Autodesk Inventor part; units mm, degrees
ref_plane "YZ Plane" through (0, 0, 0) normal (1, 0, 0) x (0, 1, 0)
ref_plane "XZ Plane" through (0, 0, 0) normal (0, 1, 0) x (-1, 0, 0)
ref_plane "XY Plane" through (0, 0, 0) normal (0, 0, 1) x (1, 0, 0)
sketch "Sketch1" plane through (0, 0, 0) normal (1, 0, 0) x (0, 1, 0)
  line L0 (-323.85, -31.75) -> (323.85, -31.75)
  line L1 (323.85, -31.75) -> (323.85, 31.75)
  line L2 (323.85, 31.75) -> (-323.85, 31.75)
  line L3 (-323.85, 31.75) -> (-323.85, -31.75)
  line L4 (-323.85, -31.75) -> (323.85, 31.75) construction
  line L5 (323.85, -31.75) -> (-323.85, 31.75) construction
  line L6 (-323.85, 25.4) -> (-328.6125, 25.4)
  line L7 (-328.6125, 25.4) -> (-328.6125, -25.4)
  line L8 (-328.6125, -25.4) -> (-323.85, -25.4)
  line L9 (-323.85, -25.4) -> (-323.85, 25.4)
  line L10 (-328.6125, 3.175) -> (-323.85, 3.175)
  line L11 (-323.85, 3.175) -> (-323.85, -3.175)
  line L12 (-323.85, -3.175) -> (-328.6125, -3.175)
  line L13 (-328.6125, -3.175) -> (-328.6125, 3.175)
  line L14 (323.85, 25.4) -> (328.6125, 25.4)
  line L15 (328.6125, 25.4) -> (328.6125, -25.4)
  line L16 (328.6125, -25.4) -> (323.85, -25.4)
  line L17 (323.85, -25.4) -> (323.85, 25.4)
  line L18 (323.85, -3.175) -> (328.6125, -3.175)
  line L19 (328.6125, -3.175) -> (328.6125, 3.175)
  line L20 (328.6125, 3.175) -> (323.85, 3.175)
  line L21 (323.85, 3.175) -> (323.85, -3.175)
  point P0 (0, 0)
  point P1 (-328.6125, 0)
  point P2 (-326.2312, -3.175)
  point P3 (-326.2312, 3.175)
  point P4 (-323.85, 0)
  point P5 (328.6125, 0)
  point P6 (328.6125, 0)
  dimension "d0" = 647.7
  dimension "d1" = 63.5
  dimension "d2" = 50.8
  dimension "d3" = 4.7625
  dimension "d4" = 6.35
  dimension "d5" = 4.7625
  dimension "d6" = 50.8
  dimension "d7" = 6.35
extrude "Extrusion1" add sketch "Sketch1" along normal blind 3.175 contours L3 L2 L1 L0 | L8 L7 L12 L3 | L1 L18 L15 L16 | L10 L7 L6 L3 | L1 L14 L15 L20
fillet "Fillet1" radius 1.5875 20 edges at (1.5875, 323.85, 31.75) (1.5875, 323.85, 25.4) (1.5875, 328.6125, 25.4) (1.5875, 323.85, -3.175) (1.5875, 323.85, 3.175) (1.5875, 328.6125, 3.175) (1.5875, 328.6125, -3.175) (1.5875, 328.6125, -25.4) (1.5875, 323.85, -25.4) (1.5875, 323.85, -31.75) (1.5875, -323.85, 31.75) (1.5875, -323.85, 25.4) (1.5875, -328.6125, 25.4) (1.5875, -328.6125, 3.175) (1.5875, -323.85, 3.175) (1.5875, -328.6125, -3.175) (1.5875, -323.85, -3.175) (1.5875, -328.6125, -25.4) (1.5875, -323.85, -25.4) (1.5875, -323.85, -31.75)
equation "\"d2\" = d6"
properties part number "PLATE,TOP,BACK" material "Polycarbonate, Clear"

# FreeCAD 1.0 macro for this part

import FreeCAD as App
import Part
import Sketcher
Q = App.Units.Quantity


def edges_at(feature, points):
    """Names of the edges that pass closest to the given points."""
    edges = feature.Shape.Edges
    near = lambda p: min(range(len(edges)), key=lambda i: edges[i].distToShape(Part.Vertex(*p))[0])
    return sorted({f"Edge{near(p) + 1}" for p in points})


def add_polygon(sketch, points):
    """Adds a closed chain of lines whose ends are joined by coincident constraints."""
    first, n = sketch.GeometryCount, len(points)
    for a, b in zip(points, points[1:] + points[:1]):
        sketch.addGeometry(Part.LineSegment(App.Vector(*a, 0), App.Vector(*b, 0)), False)
    for i in range(n):
        sketch.addConstraint(Sketcher.Constraint("Coincident", first + i, 2, first + (i + 1) % n, 1))

doc = App.newDocument("Part")
params = doc.addObject("Spreadsheet::Sheet", "Params")
for row, (alias, value) in enumerate([
    ("sketch1_width", "25.5 in"),
    ("sketch1_height", "0.25 in"),
    ("sketch1_width2", "0.1875 in"),
    ("pad1_length", "0.125 in"),
    ("fillet_radius", "0.0625 in"),
], start=1):
    params.set(f"A{row}", alias)
    params.set(f"B{row}", "=" + value)
    params.setAlias(f"B{row}", alias)

body = doc.addObject("PartDesign::Body", "Body")

# Sketch on YZ plane
sketch1 = doc.addObject("Sketcher::SketchObject", "Sketch")
body.addObject(sketch1)
sketch1.AttachmentSupport = (doc.YZ_Plane, [""])
sketch1.MapMode = "FlatFace"
add_polygon(sketch1, [(-323.9, -25.4), (-323.9, -31.8), (323.9, -31.8), (323.9, -25.4), (328.6, -25.4), (328.6, -3.2), (323.9, -3.2), (323.9, 3.2), (328.6, 3.2), (328.6, 25.4), (323.9, 25.4), (323.9, 31.8), (-323.9, 31.8), (-323.9, 25.4), (-328.6, 25.4), (-328.6, 3.2), (-323.9, 3.2), (-323.9, -3.2), (-328.6, -3.2), (-328.6, -25.4)])  # lines 0-19
sketch1.addConstraint(Sketcher.Constraint("Vertical", 0))
sketch1.addConstraint(Sketcher.Constraint("Horizontal", 1))
sketch1.addConstraint(Sketcher.Constraint("Vertical", 2))
sketch1.addConstraint(Sketcher.Constraint("Horizontal", 3))
sketch1.addConstraint(Sketcher.Constraint("Vertical", 4))
sketch1.addConstraint(Sketcher.Constraint("Horizontal", 5))
sketch1.addConstraint(Sketcher.Constraint("Vertical", 6))
sketch1.addConstraint(Sketcher.Constraint("Horizontal", 7))
sketch1.addConstraint(Sketcher.Constraint("Vertical", 8))
sketch1.addConstraint(Sketcher.Constraint("Horizontal", 9))
sketch1.addConstraint(Sketcher.Constraint("Vertical", 10))
sketch1.addConstraint(Sketcher.Constraint("Horizontal", 11))
sketch1.addConstraint(Sketcher.Constraint("Vertical", 12))
sketch1.addConstraint(Sketcher.Constraint("Horizontal", 13))
sketch1.addConstraint(Sketcher.Constraint("Vertical", 14))
sketch1.addConstraint(Sketcher.Constraint("Horizontal", 15))
sketch1.addConstraint(Sketcher.Constraint("Vertical", 16))
sketch1.addConstraint(Sketcher.Constraint("Horizontal", 17))
sketch1.addConstraint(Sketcher.Constraint("Vertical", 18))
sketch1.addConstraint(Sketcher.Constraint("Horizontal", 19))
sketch1.addConstraint(Sketcher.Constraint("Symmetric", 0, 2, 10, 2, -1, 1))
sketch1.addConstraint(Sketcher.Constraint("Symmetric", 2, 2, 12, 2, -1, 1))
sketch1.addConstraint(Sketcher.Constraint("Symmetric", 4, 2, 14, 2, -1, 1))
sketch1.addConstraint(Sketcher.Constraint("Symmetric", 6, 2, 16, 2, -1, 1))
sketch1.addConstraint(Sketcher.Constraint("Symmetric", 8, 2, 18, 2, -1, 1))
sketch1.addConstraint(Sketcher.Constraint("Symmetric", 9, 2, 12, 2, -2))
sketch1.addConstraint(Sketcher.Constraint("Symmetric", 7, 2, 14, 2, -2))
sketch1.addConstraint(Sketcher.Constraint("Vertical", 2, 2, 5, 2))
sketch1.addConstraint(Sketcher.Constraint("Equal", 2, 6))
sketch1.addConstraint(Sketcher.Constraint("DistanceX", 1, 1, 1, 2, Q("25.5 in")))
sketch1.addConstraint(Sketcher.Constraint("DistanceY", 3, 2, 8, 2, Q("2 in")))
sketch1.addConstraint(Sketcher.Constraint("DistanceY", 0, 2, 0, 1, Q("0.25 in")))
sketch1.addConstraint(Sketcher.Constraint("DistanceX", 3, 1, 3, 2, Q("0.1875 in")))
sketch1.setExpression("Constraints[49]", "Params.sketch1_width")
sketch1.setExpression("Constraints[51]", "Params.sketch1_height")
sketch1.setExpression("Constraints[52]", "Params.sketch1_width2")
pad1 = doc.addObject("PartDesign::Pad", "Pad")
body.addObject(pad1)
pad1.Profile = sketch1
pad1.setExpression("Length", "Params.pad1_length")
doc.recompute()

fillet = doc.addObject("PartDesign::Fillet", "Fillet")
body.addObject(fillet)
fillet.Base = (pad1, edges_at(pad1, [
    (1.587, 323.85, 31.75),
    (1.587, 323.85, 25.4),
    (1.587, 328.613, 25.4),
    (1.587, 323.85, -3.175),
    (1.587, 323.85, 3.175),
    (1.587, 328.613, 3.175),
    (1.587, 328.613, -3.175),
    (1.587, 328.613, -25.4),
    (1.587, 323.85, -25.4),
    (1.587, 323.85, -31.75),
    (1.587, -323.85, 31.75),
    (1.587, -323.85, 25.4),
    (1.587, -328.613, 25.4),
    (1.587, -328.613, 3.175),
    (1.587, -323.85, 3.175),
    (1.587, -328.613, -3.175),
    (1.587, -323.85, -3.175),
    (1.587, -328.613, -25.4),
    (1.587, -323.85, -25.4),
    (1.587, -323.85, -31.75),
]))
fillet.setExpression("Radius", "Params.fillet_radius")

doc.recompute()
